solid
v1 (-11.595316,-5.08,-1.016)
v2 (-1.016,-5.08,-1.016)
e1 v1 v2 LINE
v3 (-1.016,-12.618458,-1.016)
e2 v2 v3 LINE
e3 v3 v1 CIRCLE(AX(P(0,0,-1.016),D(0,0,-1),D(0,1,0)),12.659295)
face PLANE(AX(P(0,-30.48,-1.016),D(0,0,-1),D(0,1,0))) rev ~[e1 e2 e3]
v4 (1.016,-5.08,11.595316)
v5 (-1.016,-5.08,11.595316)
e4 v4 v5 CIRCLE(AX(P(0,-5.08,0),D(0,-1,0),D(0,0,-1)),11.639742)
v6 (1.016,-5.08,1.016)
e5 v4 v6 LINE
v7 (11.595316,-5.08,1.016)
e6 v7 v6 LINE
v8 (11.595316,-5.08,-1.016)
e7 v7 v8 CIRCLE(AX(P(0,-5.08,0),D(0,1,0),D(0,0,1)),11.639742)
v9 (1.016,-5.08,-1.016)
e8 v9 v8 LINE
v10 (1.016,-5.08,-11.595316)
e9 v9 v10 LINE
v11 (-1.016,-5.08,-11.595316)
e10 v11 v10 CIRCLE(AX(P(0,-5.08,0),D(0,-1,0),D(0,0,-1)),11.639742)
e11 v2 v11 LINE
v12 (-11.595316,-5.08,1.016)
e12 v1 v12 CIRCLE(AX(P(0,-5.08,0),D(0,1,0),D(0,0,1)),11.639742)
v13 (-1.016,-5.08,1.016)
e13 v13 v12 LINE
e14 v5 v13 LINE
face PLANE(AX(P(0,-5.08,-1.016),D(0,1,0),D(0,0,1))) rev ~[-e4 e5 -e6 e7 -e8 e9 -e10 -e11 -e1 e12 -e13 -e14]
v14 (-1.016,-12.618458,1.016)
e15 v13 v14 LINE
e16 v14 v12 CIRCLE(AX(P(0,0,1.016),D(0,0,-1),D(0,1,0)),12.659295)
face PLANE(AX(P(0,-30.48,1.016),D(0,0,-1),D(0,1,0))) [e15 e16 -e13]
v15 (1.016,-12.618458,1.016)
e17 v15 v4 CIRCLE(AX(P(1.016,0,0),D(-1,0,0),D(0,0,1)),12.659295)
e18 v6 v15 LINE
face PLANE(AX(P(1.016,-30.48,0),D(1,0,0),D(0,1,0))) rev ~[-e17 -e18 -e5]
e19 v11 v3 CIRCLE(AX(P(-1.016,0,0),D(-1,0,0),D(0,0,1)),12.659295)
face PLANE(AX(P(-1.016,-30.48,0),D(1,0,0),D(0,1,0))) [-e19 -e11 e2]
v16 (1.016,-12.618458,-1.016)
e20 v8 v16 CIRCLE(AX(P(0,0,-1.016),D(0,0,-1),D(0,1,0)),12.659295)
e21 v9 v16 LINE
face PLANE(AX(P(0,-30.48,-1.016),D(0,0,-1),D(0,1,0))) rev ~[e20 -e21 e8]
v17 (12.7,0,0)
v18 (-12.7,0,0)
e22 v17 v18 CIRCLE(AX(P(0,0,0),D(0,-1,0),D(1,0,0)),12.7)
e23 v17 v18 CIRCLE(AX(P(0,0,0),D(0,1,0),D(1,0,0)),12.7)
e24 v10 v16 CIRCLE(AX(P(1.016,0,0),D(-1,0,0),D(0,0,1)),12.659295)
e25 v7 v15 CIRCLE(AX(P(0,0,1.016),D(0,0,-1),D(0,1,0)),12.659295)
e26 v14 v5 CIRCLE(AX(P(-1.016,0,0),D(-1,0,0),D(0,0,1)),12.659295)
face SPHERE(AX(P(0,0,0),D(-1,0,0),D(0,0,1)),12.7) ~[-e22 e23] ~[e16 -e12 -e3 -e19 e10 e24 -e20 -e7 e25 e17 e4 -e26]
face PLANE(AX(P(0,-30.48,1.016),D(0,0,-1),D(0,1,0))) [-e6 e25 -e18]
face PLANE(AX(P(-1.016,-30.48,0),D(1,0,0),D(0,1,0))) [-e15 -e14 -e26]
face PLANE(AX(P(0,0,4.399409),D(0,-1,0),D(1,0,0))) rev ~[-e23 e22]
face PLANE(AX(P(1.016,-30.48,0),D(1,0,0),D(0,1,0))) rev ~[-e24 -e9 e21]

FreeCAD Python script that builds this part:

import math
import FreeCAD as App
import Part
import Sketcher
from FreeCAD import Vector
Q = App.Units.Quantity

doc = App.newDocument("Part")
body = doc.addObject("PartDesign::Body", "Body")

# Sketch on XZ plane
sketch1 = body.newObject("Sketcher::SketchObject", "Sketch")
sketch1.AttachmentSupport = (doc.getObject("XZ_Plane"), [""])
sketch1.MapMode = "FlatFace"
sketch1.addGeometry([
    Part.ArcOfCircle(Part.Circle(Vector(0, 0, 0), Vector(0, 0, 1), 13), math.radians(0), math.radians(180)),
    Part.LineSegment(Vector(-13, 0, 0), Vector(13, 0, 0)),
], False)
sketch1.addConstraint([
    Sketcher.Constraint("Coincident", 0, 1, 1, 2),
    Sketcher.Constraint("Coincident", 1, 1, 0, 2),
    Sketcher.Constraint("Horizontal", 1),
    Sketcher.Constraint("Coincident", 0, 3, -1, 1),
    Sketcher.Constraint("PointOnObject", 0, 1, -1),
    Sketcher.Constraint("Radius", 0, Q("0.5 in")),
])
revolution = body.newObject("PartDesign::Revolution", "Revolution")
revolution.Profile = sketch1
revolution.ReferenceAxis = (sketch1, ["H_Axis"])
revolution.Angle = 180

# Sketch on YZ plane
sketch2 = body.newObject("Sketcher::SketchObject", "Sketch001")
sketch2.AttachmentSupport = (doc.getObject("YZ_Plane"), [""])
sketch2.MapMode = "FlatFace"
sketch2.addGeometry([
    Part.LineSegment(Vector(-30.5, 1, 0), Vector(-30.5, -1, 0)),
    Part.LineSegment(Vector(-30.5, -1, 0), Vector(-5.1, -1, 0)),
    Part.LineSegment(Vector(-5.1, -1, 0), Vector(-5.1, 1, 0)),
    Part.LineSegment(Vector(-5.1, 1, 0), Vector(-30.5, 1, 0)),
], False)
sketch2.addConstraint([
    Sketcher.Constraint("Coincident", 0, 2, 1, 1),
    Sketcher.Constraint("Coincident", 1, 2, 2, 1),
    Sketcher.Constraint("Coincident", 2, 2, 3, 1),
    Sketcher.Constraint("Coincident", 3, 2, 0, 1),
    Sketcher.Constraint("Vertical", 0),
    Sketcher.Constraint("Horizontal", 1),
    Sketcher.Constraint("Vertical", 2),
    Sketcher.Constraint("Horizontal", 3),
    Sketcher.Constraint("DistanceX", 1, 1, 1, 2, Q("1 in")),
    Sketcher.Constraint("DistanceY", 0, 2, 0, 1, Q("0.08 in")),
    Sketcher.Constraint("DistanceX", 0, 2, -1, 1, Q("1.2 in")),
    Sketcher.Constraint("DistanceY", 0, 2, -1, 1, Q("0.04 in")),
])
pocket1 = body.newObject("PartDesign::Pocket", "Pocket")
pocket1.Profile = sketch2
pocket1.Length = Q("1 in")
pocket1.Midplane = True

# Sketch on XY plane
sketch3 = body.newObject("Sketcher::SketchObject", "Sketch002")
sketch3.AttachmentSupport = (doc.getObject("XY_Plane"), [""])
sketch3.MapMode = "FlatFace"
sketch3.addGeometry([
    Part.LineSegment(Vector(-1, -5.1, 0), Vector(-1, -30.5, 0)),
    Part.LineSegment(Vector(-1, -30.5, 0), Vector(1, -30.5, 0)),
    Part.LineSegment(Vector(1, -30.5, 0), Vector(1, -5.1, 0)),
    Part.LineSegment(Vector(1, -5.1, 0), Vector(-1, -5.1, 0)),
], False)
sketch3.addConstraint([
    Sketcher.Constraint("Coincident", 0, 2, 1, 1),
    Sketcher.Constraint("Coincident", 1, 2, 2, 1),
    Sketcher.Constraint("Coincident", 2, 2, 3, 1),
    Sketcher.Constraint("Coincident", 3, 2, 0, 1),
    Sketcher.Constraint("Vertical", 0),
    Sketcher.Constraint("Horizontal", 1),
    Sketcher.Constraint("Vertical", 2),
    Sketcher.Constraint("Horizontal", 3),
    Sketcher.Constraint("DistanceY", 0, 2, 0, 1, Q("1 in")),
    Sketcher.Constraint("DistanceX", 1, 1, 1, 2, Q("0.08 in")),
    Sketcher.Constraint("DistanceY", 0, 2, -1, 1, Q("1.2 in")),
    Sketcher.Constraint("DistanceX", 0, 2, -1, 1, Q("0.04 in")),
])
pocket2 = body.newObject("PartDesign::Pocket", "Pocket001")
pocket2.Profile = sketch3
pocket2.Length = Q("1 in")
pocket2.Midplane = True

doc.recompute()
